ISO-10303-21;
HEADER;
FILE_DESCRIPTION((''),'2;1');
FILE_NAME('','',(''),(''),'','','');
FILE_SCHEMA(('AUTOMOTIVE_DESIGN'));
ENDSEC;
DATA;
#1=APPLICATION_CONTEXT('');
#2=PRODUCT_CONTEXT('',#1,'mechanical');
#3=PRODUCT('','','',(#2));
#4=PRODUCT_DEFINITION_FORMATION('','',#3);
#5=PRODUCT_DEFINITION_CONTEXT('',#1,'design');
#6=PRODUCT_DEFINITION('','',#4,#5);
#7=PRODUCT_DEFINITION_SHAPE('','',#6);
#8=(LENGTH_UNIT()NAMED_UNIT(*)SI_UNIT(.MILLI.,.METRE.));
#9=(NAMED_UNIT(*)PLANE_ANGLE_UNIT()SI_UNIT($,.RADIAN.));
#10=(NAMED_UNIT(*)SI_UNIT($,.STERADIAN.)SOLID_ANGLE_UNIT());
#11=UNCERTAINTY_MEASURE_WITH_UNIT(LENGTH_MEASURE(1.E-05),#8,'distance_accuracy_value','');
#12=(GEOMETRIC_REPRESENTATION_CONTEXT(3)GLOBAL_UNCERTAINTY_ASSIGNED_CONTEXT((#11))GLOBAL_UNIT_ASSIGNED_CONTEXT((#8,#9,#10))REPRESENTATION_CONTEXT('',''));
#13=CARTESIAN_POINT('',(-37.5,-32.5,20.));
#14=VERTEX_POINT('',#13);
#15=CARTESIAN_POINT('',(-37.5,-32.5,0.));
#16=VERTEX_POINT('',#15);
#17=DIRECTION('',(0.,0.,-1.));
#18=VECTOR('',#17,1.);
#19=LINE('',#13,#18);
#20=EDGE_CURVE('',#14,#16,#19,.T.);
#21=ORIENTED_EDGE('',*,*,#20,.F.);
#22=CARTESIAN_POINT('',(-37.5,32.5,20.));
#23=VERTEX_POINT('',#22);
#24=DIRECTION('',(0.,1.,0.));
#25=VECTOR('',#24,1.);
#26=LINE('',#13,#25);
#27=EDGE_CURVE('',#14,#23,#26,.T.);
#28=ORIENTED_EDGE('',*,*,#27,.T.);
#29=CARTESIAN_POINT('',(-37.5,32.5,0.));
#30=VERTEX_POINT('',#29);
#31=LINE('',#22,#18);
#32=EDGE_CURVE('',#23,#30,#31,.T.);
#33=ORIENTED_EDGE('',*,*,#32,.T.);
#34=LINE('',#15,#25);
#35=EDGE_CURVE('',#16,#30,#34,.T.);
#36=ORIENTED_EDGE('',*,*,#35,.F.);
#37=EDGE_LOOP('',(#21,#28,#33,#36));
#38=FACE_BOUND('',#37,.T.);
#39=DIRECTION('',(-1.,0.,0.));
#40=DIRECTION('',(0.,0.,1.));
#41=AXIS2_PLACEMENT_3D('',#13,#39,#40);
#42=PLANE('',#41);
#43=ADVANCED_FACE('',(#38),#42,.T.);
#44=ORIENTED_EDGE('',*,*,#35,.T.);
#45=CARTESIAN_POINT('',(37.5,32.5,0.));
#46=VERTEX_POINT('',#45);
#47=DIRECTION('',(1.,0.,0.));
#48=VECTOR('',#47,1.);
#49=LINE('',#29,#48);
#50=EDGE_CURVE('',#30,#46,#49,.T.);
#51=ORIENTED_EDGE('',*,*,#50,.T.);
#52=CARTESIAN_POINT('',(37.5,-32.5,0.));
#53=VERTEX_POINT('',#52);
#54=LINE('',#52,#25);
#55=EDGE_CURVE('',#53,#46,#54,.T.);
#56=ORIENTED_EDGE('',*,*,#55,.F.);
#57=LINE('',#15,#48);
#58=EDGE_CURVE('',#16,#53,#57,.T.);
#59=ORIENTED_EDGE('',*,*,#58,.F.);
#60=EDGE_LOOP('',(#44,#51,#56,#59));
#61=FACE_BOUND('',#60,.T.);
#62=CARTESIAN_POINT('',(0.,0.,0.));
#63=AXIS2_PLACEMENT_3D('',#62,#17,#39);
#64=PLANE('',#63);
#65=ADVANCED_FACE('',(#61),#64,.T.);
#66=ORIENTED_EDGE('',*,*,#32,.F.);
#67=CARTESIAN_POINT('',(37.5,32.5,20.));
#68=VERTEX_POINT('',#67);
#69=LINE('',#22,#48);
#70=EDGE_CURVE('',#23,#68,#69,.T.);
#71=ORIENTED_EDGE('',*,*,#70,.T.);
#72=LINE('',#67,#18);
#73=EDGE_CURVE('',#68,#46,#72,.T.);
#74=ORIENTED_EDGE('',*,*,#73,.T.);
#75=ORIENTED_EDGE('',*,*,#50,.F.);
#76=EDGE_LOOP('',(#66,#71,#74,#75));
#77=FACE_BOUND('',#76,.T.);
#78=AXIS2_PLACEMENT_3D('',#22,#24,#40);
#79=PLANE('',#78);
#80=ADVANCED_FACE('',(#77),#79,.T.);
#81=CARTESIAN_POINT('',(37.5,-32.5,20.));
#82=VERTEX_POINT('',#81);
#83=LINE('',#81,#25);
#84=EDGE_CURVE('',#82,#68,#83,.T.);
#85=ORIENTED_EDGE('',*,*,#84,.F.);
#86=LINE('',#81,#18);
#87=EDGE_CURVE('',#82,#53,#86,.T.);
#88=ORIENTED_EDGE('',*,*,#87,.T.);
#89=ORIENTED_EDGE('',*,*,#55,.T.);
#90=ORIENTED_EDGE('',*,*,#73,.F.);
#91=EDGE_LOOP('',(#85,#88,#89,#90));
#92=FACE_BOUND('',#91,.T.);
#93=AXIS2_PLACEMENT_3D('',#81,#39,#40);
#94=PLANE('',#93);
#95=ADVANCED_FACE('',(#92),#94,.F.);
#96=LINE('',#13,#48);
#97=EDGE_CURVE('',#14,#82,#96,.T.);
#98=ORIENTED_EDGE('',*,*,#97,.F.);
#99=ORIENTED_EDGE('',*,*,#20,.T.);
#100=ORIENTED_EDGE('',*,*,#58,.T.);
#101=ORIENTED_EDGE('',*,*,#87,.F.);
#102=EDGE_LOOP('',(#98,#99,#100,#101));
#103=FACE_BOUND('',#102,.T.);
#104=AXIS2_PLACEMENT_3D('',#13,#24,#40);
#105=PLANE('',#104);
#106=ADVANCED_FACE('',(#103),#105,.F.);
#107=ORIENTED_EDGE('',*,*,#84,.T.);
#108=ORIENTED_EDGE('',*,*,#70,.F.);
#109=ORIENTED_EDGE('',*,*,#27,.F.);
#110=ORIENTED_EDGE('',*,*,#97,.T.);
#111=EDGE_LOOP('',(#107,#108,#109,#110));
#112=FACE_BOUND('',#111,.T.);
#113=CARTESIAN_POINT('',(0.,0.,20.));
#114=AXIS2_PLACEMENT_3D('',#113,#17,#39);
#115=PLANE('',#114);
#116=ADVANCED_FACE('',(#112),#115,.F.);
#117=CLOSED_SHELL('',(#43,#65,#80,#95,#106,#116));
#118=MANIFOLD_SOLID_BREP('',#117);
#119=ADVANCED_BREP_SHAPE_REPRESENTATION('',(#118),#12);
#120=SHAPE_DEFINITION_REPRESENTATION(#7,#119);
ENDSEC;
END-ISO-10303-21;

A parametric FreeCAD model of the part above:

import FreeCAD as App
import Part
import Sketcher
from FreeCAD import Vector


def add_polygon(sketch, points):
    """Adds a closed chain of lines whose ends are joined by coincident constraints."""
    first, n = sketch.GeometryCount, len(points)
    for a, b in zip(points, points[1:] + points[:1]):
        sketch.addGeometry(Part.LineSegment(App.Vector(*a, 0), App.Vector(*b, 0)), False)
    for i in range(n):
        sketch.addConstraint(Sketcher.Constraint("Coincident", first + i, 2, first + (i + 1) % n, 1))

doc = App.newDocument("Part")
body = doc.addObject("PartDesign::Body", "Body")

sketch1 = body.newObject("Sketcher::SketchObject", "Sketch")
sketch1.AttachmentSupport = (doc.getObject("XY_Plane"), [""])
sketch1.MapMode = "FlatFace"
add_polygon(sketch1, [(-38, 32), (-38, -32), (38, -32), (38, 32)])
sketch1.addConstraint([
    Sketcher.Constraint("Vertical", 0),
    Sketcher.Constraint("Horizontal", 1),
    Sketcher.Constraint("Vertical", 2),
    Sketcher.Constraint("Horizontal", 3),
    Sketcher.Constraint("Symmetric", 0, 2, 2, 2, -1, 1),
    Sketcher.Constraint("DistanceX", 1, 1, 1, 2, 75.0),
    Sketcher.Constraint("DistanceY", 0, 2, 0, 1, 65.0),
])
pad1 = body.newObject("PartDesign::Pad", "Pad")
pad1.Profile = sketch1
pad1.Length = 20

doc.recompute()
